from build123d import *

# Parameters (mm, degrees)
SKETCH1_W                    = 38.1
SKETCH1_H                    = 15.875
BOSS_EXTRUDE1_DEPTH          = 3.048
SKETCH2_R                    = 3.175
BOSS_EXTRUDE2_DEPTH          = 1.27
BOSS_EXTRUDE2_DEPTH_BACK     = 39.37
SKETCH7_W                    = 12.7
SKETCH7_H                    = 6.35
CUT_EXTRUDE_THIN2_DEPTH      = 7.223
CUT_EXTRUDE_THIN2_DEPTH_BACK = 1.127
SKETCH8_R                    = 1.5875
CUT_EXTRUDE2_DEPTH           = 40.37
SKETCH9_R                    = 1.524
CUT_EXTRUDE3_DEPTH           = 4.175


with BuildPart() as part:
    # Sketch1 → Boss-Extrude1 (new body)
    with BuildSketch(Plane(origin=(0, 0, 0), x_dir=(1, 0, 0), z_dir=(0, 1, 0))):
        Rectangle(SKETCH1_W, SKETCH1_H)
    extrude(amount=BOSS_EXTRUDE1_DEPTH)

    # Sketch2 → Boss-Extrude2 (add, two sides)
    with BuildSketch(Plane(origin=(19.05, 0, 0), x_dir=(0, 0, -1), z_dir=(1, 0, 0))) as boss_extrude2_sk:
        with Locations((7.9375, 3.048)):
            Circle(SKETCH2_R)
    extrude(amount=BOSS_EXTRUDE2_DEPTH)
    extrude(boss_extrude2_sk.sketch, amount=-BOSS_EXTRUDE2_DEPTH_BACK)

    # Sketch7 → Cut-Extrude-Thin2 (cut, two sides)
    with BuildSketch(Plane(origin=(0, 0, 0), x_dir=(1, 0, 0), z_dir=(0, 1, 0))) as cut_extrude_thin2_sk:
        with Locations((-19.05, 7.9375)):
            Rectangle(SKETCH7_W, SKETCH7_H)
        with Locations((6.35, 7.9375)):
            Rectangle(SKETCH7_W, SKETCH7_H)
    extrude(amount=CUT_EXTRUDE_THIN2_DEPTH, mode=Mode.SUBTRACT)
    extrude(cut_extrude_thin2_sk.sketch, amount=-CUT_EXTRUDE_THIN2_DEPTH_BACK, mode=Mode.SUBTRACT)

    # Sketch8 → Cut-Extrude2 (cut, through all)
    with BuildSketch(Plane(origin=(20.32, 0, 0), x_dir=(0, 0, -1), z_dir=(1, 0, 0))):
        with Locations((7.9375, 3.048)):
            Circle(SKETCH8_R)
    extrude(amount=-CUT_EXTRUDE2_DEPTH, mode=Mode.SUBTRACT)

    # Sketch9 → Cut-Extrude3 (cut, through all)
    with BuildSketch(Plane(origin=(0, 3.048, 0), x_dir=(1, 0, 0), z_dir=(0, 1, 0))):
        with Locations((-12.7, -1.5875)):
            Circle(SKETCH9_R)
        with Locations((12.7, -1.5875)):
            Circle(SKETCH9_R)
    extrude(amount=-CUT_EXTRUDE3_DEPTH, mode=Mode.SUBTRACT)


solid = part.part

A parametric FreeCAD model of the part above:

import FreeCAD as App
import Part
import Sketcher
from FreeCAD import Vector
Q = App.Units.Quantity


def add_polygon(sketch, points):
    """Adds a closed chain of lines whose ends are joined by coincident constraints."""
    first, n = sketch.GeometryCount, len(points)
    for a, b in zip(points, points[1:] + points[:1]):
        sketch.addGeometry(Part.LineSegment(App.Vector(*a, 0), App.Vector(*b, 0)), False)
    for i in range(n):
        sketch.addConstraint(Sketcher.Constraint("Coincident", first + i, 2, first + (i + 1) % n, 1))

doc = App.newDocument("Part")
params = doc.addObject("Spreadsheet::Sheet", "Params")
for row, (alias, value) in enumerate([
    ("sketch1_width", "1.5 in"),
    ("sketch1_height", "0.625 in"),
    ("pad1_length", "0.12 in"),
    ("sketch2_diameter", "0.25 in"),
    ("pad2_length", "0.05 in"),
    ("pad2_length2", "1.55 in"),
    ("sketch3_width", "0.5 in"),
    ("sketch3_height", "0.25 in"),
    ("sketch4_diameter", "0.125 in"),
    ("sketch5_diameter", "0.12 in"),
], start=1):
    params.set(f"A{row}", alias)
    params.set(f"B{row}", "=" + value)
    params.setAlias(f"B{row}", alias)

body = doc.addObject("PartDesign::Body", "Body")

# Sketch on XZ plane
sketch1 = body.newObject("Sketcher::SketchObject", "Sketch")
sketch1.AttachmentSupport = (doc.getObject("XZ_Plane"), [""])
sketch1.MapMode = "FlatFace"
add_polygon(sketch1, [(-19.05, -7.9375), (-19.05, 7.9375), (19.05, 7.9375), (19.05, -7.9375)])  # lines 0-3
sketch1.addConstraint([
    Sketcher.Constraint("Vertical", 0),
    Sketcher.Constraint("Horizontal", 1),
    Sketcher.Constraint("Vertical", 2),
    Sketcher.Constraint("Horizontal", 3),
    Sketcher.Constraint("Symmetric", 0, 2, 2, 2, -1, 1),
    Sketcher.Constraint("DistanceX", 1, 1, 1, 2, Q("1.5 in")),
    Sketcher.Constraint("DistanceY", 0, 1, 0, 2, Q("0.625 in")),
])
sketch1.setExpression("Constraints[9]", "Params.sketch1_width")
sketch1.setExpression("Constraints[10]", "Params.sketch1_height")
pad1 = body.newObject("PartDesign::Pad", "Pad")
pad1.Profile = sketch1
pad1.setExpression("Length", "Params.pad1_length")
pad1.Reversed = True

# Sketch on YZ plane
sketch2 = body.newObject("Sketcher::SketchObject", "Sketch001")
sketch2.AttachmentSupport = (doc.getObject("YZ_Plane"), [""])
sketch2.MapMode = "FlatFace"
sketch2.AttachmentOffset = App.Placement(Vector(0, 0, 0.75 * 25.4), App.Rotation())
sketch2.addGeometry(Part.Circle(Vector(3.048, -7.9375, 0), Vector(0, 0, 1), 3.175), False)
sketch2.addConstraint([
    Sketcher.Constraint("Diameter", 0, Q("0.25 in")),
    Sketcher.Constraint("DistanceX", -1, 1, 0, 3, Q("0.12 in")),
    Sketcher.Constraint("DistanceY", 0, 3, -1, 1, Q("0.3125 in")),
])
sketch2.setExpression("Constraints[0]", "Params.sketch2_diameter")
pad2 = body.newObject("PartDesign::Pad", "Pad001")
pad2.Profile = sketch2
pad2.Type = "TwoLengths"
pad2.setExpression("Length", "Params.pad2_length")
pad2.setExpression("Length2", "Params.pad2_length2")

# Sketch on XZ plane
sketch3 = body.newObject("Sketcher::SketchObject", "Sketch002")
sketch3.AttachmentSupport = (doc.getObject("XZ_Plane"), [""])
sketch3.MapMode = "FlatFace"
add_polygon(sketch3, [(-25.4, -11.1125), (-25.4, -4.7625), (-12.7, -4.7625), (-12.7, -11.1125)])  # lines 0-3
add_polygon(sketch3, [(0, -11.1125), (0, -4.7625), (12.7, -4.7625), (12.7, -11.1125)])  # lines 4-7
sketch3.addConstraint([
    Sketcher.Constraint("Vertical", 0),
    Sketcher.Constraint("Horizontal", 1),
    Sketcher.Constraint("Vertical", 2),
    Sketcher.Constraint("Horizontal", 3),
    Sketcher.Constraint("Vertical", 4),
    Sketcher.Constraint("Horizontal", 5),
    Sketcher.Constraint("Vertical", 6),
    Sketcher.Constraint("Horizontal", 7),
    Sketcher.Constraint("Symmetric", 1, 2, 5, 2, -2),
    Sketcher.Constraint("PointOnObject", 4, 2, -2),
    Sketcher.Constraint("Horizontal", 3, 2, 6, 2),
    Sketcher.Constraint("Equal", 3, 5),
    Sketcher.Constraint("DistanceX", 1, 1, 1, 2, Q("0.5 in")),
    Sketcher.Constraint("DistanceY", 0, 1, 0, 2, Q("0.25 in")),
    Sketcher.Constraint("DistanceY", 0, 2, -1, 1, Q("0.1875 in")),
])
sketch3.setExpression("Constraints[20]", "Params.sketch3_width")
sketch3.setExpression("Constraints[21]", "Params.sketch3_height")
pocket1 = body.newObject("PartDesign::Pocket", "Pocket")
pocket1.Profile = sketch3
pocket1.Type = "ThroughAll"
pocket1.Midplane = True

# Sketch on YZ plane
sketch4 = body.newObject("Sketcher::SketchObject", "Sketch003")
sketch4.AttachmentSupport = (doc.getObject("YZ_Plane"), [""])
sketch4.MapMode = "FlatFace"
sketch4.AttachmentOffset = App.Placement(Vector(0, 0, 0.8 * 25.4), App.Rotation())
sketch4.addGeometry(Part.Circle(Vector(3.048, -7.9375, 0), Vector(0, 0, 1), 1.5875), False)
sketch4.addConstraint([
    Sketcher.Constraint("Diameter", 0, Q("0.125 in")),
    Sketcher.Constraint("DistanceX", -1, 1, 0, 3, Q("0.12 in")),
    Sketcher.Constraint("DistanceY", 0, 3, -1, 1, Q("0.3125 in")),
])
sketch4.setExpression("Constraints[0]", "Params.sketch4_diameter")
pocket2 = body.newObject("PartDesign::Pocket", "Pocket001")
pocket2.Profile = sketch4
pocket2.Type = "ThroughAll"

# Sketch on XZ plane
sketch5 = body.newObject("Sketcher::SketchObject", "Sketch004")
sketch5.AttachmentSupport = (doc.getObject("XZ_Plane"), [""])
sketch5.MapMode = "FlatFace"
sketch5.AttachmentOffset = App.Placement(Vector(0, 0, -0.12 * 25.4), App.Rotation())
sketch5.addGeometry([
    Part.Circle(Vector(-12.7, 1.5875, 0), Vector(0, 0, 1), 1.524),
    Part.Circle(Vector(12.7, 1.5875, 0), Vector(0, 0, 1), 1.524),
], False)
sketch5.addConstraint([
    Sketcher.Constraint("Equal", 0, 1),
    Sketcher.Constraint("Symmetric", 0, 3, 1, 3, -2),
    Sketcher.Constraint("Diameter", 0, Q("0.12 in")),
    Sketcher.Constraint("DistanceX", 0, 3, 1, 3, Q("1 in")),
    Sketcher.Constraint("DistanceY", -1, 1, 0, 3, Q("0.0625 in")),
])
sketch5.setExpression("Constraints[2]", "Params.sketch5_diameter")
pocket3 = body.newObject("PartDesign::Pocket", "Pocket002")
pocket3.Profile = sketch5
pocket3.Type = "ThroughAll"
pocket3.Reversed = True

doc.recompute()
